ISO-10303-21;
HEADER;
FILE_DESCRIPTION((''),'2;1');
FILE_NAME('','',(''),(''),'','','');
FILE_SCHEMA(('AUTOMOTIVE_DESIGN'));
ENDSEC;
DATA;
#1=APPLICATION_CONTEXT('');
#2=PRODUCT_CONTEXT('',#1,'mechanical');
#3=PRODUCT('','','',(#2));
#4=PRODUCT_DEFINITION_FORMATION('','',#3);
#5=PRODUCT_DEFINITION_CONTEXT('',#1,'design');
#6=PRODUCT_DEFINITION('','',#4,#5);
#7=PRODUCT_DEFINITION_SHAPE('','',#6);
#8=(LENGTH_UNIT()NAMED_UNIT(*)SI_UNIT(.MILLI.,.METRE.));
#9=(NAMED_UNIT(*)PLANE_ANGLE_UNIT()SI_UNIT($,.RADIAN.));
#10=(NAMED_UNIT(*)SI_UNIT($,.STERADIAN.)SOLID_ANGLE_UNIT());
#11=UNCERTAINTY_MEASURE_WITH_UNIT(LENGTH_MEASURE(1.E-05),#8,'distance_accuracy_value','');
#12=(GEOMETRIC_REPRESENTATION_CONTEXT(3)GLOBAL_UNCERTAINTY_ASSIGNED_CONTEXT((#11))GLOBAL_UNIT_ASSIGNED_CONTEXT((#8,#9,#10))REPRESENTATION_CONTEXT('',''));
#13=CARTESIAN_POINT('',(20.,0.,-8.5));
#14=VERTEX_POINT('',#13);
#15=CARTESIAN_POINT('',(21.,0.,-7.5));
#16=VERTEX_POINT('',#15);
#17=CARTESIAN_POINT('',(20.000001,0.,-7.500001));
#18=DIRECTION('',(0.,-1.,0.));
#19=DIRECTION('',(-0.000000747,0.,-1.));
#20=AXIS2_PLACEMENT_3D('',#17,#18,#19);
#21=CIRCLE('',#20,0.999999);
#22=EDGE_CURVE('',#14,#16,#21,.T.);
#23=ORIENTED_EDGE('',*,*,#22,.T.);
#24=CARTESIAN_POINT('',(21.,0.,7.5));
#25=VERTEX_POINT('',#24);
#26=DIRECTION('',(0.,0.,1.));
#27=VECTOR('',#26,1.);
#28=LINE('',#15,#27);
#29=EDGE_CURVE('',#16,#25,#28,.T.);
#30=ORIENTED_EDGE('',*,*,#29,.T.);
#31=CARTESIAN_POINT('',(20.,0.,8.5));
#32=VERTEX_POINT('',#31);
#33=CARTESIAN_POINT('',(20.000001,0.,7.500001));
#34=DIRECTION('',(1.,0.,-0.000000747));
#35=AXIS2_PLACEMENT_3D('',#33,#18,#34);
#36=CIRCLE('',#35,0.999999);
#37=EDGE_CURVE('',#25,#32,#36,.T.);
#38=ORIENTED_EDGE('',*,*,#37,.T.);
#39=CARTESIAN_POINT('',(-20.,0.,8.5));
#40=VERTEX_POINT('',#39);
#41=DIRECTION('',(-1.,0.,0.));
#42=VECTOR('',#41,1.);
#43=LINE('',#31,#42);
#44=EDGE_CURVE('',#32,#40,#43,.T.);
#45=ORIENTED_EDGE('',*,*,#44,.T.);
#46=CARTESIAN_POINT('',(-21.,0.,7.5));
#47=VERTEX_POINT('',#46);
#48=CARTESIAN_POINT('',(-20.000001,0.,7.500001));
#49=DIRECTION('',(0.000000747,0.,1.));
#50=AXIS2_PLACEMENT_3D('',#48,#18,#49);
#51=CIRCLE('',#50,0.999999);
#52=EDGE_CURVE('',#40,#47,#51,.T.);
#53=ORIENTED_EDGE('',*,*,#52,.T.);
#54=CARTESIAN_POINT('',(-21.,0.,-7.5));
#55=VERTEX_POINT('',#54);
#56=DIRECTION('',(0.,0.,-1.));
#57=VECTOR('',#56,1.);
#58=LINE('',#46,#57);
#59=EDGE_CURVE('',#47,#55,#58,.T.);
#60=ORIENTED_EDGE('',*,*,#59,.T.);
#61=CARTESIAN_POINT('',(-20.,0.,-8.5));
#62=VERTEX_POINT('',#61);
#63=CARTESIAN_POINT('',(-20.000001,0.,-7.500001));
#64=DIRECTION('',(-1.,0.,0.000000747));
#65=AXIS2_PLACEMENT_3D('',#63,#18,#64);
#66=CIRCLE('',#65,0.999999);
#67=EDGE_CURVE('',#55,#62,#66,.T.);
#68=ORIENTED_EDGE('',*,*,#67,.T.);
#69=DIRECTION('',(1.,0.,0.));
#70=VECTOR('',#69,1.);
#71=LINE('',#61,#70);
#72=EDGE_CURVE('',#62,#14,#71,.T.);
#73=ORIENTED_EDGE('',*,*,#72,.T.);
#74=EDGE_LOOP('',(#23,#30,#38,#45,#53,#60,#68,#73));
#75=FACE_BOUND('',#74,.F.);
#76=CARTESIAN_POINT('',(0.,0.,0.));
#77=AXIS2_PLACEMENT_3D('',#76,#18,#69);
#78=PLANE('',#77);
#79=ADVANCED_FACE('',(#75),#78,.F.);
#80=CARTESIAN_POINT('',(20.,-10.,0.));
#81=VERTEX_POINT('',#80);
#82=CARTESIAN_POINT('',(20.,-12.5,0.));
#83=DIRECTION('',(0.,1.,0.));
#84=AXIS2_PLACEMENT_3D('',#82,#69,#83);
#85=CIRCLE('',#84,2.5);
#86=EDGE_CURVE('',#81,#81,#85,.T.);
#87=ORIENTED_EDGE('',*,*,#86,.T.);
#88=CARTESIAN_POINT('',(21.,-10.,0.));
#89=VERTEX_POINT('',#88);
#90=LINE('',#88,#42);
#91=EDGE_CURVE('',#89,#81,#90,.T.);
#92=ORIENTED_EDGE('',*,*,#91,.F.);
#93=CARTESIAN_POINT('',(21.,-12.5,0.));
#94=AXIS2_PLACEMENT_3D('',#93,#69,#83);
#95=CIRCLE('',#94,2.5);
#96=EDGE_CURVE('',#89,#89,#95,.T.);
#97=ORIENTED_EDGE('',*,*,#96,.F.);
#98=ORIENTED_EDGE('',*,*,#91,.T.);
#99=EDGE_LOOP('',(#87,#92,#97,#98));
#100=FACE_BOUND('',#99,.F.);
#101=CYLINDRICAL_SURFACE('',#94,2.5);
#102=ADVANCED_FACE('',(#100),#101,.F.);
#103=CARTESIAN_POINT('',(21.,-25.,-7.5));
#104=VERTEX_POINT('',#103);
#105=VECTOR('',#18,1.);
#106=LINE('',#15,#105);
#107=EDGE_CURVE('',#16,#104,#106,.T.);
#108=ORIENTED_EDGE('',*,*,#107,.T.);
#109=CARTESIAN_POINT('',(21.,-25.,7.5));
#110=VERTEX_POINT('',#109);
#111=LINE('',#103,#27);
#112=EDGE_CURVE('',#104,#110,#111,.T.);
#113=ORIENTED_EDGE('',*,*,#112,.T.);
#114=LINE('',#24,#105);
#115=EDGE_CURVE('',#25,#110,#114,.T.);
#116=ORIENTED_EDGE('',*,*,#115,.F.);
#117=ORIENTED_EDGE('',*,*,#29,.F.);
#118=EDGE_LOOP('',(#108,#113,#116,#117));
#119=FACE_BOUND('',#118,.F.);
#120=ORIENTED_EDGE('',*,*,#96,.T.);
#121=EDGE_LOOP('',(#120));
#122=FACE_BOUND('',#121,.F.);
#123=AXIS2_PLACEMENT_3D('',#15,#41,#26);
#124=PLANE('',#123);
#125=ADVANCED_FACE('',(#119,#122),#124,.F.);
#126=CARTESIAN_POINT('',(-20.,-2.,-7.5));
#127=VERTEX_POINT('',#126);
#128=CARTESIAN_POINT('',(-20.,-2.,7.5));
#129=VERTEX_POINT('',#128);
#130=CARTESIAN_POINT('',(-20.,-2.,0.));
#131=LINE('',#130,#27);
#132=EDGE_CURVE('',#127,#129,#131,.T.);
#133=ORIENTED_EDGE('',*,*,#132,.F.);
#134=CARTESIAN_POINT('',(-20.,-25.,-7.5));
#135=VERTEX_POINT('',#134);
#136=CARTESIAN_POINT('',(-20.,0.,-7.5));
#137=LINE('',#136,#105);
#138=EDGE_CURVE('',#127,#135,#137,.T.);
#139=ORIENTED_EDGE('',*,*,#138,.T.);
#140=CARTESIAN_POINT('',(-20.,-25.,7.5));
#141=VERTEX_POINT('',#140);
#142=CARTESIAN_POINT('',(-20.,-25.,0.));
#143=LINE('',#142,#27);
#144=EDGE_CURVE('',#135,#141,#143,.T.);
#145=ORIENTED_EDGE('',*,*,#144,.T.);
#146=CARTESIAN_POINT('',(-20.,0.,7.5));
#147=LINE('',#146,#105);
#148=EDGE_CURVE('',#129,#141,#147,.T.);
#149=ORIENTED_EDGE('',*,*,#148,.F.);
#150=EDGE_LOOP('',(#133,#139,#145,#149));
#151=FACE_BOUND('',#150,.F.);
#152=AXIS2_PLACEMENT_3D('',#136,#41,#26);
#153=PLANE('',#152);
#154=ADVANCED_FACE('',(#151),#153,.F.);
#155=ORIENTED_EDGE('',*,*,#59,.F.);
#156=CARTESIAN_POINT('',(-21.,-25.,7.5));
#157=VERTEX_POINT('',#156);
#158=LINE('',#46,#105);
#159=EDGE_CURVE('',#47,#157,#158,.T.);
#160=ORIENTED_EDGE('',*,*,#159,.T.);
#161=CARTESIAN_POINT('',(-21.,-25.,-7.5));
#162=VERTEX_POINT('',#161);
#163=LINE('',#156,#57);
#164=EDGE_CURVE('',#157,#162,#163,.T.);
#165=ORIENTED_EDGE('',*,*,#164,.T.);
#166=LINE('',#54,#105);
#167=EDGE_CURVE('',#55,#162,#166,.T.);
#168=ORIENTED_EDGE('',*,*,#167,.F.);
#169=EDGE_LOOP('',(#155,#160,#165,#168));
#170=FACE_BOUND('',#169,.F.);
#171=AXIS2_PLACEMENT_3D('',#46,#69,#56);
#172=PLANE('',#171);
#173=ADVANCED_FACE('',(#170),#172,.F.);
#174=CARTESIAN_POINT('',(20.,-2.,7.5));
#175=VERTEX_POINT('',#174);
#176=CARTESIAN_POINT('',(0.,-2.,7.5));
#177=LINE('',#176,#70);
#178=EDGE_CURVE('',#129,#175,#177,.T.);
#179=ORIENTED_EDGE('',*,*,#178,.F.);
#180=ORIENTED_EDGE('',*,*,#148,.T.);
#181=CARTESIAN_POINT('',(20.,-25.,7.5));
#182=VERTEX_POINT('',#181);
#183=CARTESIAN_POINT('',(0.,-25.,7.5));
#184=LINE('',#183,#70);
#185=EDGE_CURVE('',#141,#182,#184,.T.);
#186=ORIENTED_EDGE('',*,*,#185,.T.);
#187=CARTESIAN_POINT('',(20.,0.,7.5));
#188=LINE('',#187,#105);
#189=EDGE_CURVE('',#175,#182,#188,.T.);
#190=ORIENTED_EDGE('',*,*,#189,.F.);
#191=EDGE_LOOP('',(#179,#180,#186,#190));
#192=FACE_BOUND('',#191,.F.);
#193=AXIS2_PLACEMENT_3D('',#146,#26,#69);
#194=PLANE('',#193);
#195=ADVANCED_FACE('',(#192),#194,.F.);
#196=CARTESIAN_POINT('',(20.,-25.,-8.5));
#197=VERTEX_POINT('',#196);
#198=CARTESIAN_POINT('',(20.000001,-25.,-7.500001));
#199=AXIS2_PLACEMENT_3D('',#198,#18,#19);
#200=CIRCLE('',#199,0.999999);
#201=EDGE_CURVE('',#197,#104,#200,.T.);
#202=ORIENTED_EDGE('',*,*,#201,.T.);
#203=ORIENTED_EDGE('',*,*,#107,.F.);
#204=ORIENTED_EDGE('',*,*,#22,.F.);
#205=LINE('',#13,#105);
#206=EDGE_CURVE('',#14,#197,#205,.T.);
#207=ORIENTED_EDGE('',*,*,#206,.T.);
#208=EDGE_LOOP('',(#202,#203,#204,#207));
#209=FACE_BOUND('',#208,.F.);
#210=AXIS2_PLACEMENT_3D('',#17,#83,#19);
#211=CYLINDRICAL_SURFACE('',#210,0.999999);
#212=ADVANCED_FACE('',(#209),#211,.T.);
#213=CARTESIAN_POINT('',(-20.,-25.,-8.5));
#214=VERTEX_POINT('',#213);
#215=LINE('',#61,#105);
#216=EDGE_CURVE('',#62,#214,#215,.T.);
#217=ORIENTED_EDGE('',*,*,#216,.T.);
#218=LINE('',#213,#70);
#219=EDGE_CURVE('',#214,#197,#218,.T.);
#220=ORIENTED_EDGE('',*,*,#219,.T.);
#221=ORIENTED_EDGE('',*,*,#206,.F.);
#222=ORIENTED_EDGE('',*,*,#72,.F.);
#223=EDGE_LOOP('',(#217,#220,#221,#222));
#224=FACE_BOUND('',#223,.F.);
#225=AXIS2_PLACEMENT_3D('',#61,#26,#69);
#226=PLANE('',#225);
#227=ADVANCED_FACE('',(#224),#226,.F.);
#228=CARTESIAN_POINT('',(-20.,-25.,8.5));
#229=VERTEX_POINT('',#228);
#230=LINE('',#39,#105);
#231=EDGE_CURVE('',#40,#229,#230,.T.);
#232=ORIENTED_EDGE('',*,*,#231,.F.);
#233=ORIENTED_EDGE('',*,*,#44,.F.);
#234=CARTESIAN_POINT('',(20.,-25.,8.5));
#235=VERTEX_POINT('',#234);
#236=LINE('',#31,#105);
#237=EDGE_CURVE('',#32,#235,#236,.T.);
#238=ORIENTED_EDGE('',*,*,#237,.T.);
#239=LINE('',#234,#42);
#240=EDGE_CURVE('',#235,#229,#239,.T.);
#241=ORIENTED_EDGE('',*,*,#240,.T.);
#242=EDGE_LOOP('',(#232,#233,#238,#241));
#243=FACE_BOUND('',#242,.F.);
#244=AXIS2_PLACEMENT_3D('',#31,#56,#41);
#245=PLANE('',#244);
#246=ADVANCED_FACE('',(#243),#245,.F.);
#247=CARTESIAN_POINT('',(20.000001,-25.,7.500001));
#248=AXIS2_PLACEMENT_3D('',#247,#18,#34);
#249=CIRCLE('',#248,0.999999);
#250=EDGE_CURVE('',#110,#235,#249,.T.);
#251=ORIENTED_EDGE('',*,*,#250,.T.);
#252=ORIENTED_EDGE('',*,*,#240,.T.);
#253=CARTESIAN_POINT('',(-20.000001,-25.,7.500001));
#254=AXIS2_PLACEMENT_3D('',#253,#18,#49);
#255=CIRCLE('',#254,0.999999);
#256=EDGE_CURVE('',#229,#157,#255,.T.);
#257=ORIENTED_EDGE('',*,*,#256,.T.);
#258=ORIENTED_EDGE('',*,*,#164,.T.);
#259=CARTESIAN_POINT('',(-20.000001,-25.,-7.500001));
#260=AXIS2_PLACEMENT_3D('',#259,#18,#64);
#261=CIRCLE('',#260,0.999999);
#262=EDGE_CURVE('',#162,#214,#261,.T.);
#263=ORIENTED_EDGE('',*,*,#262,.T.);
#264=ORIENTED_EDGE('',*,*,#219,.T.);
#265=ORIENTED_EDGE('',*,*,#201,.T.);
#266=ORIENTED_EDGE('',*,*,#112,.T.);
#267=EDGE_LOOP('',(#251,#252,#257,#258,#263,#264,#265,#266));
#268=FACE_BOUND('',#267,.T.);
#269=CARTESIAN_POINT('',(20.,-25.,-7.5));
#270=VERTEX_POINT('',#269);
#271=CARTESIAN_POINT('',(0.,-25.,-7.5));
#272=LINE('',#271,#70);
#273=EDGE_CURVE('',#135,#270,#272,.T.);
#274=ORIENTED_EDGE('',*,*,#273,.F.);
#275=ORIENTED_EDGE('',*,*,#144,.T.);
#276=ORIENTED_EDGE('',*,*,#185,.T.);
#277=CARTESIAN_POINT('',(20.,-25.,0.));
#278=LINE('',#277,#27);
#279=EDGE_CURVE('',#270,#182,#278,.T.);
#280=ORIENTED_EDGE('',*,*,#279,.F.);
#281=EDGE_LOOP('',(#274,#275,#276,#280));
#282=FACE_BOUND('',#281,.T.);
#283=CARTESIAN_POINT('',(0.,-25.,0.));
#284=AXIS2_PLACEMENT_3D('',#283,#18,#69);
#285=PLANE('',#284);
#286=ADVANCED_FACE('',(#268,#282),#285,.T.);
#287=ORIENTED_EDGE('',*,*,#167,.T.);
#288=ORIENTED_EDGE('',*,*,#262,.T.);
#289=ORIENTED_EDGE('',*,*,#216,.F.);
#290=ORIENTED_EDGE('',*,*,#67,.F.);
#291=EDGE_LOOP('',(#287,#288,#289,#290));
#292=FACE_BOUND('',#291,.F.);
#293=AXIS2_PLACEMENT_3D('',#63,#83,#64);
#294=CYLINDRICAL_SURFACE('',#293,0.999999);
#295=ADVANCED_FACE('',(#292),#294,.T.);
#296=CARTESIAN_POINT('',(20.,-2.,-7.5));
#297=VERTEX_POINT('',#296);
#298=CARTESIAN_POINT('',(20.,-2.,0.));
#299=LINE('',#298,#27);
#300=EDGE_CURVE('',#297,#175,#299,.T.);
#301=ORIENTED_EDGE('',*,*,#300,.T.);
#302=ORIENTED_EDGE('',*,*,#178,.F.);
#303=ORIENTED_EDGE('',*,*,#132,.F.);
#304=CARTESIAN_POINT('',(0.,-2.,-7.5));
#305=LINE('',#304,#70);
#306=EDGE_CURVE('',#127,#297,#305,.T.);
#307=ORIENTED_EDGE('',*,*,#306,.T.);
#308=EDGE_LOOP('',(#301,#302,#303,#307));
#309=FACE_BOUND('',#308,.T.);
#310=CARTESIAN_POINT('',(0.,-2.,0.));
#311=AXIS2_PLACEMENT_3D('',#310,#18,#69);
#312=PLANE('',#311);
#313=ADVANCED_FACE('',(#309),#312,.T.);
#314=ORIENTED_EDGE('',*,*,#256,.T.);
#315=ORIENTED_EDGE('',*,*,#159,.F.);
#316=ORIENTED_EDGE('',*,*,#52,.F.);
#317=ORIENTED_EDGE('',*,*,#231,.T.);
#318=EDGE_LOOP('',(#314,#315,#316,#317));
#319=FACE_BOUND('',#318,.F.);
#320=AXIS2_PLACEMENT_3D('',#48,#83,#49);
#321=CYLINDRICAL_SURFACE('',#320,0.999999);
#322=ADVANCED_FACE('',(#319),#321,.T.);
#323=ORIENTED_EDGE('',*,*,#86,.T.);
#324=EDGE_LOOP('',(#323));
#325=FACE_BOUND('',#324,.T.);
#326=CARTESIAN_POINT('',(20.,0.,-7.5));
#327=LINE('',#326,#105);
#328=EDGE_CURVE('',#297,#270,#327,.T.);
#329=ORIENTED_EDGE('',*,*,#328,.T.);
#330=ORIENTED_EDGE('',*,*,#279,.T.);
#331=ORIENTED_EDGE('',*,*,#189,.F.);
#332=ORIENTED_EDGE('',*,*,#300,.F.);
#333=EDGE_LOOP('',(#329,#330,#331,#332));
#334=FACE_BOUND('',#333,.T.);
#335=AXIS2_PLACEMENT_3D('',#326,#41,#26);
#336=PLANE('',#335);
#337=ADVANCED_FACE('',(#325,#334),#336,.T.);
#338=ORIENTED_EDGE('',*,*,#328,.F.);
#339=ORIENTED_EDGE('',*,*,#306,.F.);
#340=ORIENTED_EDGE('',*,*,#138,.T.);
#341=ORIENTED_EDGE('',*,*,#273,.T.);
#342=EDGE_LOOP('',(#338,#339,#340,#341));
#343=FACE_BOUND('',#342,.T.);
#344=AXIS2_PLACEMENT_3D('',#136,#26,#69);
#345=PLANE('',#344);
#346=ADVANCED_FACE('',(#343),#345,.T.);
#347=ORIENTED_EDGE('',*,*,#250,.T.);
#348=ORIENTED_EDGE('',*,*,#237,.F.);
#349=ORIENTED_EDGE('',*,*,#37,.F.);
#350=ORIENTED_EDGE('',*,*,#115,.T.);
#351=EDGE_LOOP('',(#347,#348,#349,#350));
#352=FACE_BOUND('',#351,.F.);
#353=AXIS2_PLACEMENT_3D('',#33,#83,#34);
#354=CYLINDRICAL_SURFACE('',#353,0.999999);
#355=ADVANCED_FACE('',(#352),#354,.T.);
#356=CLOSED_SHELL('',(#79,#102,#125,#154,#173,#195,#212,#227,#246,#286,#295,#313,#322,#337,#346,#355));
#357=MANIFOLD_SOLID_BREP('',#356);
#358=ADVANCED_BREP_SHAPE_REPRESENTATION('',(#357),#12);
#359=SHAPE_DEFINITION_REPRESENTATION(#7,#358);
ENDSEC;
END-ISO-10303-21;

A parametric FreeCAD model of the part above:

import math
import FreeCAD as App
import Part
import Sketcher
from FreeCAD import Vector
Q = App.Units.Quantity

doc = App.newDocument("Part")
body = doc.addObject("PartDesign::Body", "Body")

sketch1 = doc.addObject("Sketcher::SketchObject", "Sketch")
body.addObject(sketch1)
sketch1.AttachmentSupport = (doc.XZ_Plane, [""])
sketch1.MapMode = "FlatFace"
sketch1.addGeometry([
    Part.LineSegment(Vector(-20, -8.5, 0), Vector(20, -8.5, 0)),
    Part.ArcOfCircle(Part.Circle(Vector(20.000001, -7.500001, 0), Vector(0, 0, 1), 0.999999), math.radians(-90.000043), math.radians(0.000043)),
    Part.LineSegment(Vector(21, -7.5, 0), Vector(21, 7.5, 0)),
    Part.ArcOfCircle(Part.Circle(Vector(20.000001, 7.500001, 0), Vector(0, 0, 1), 0.999999), math.radians(-0.000043), math.radians(90.000043)),
    Part.LineSegment(Vector(20, 8.5, 0), Vector(-20, 8.5, 0)),
    Part.ArcOfCircle(Part.Circle(Vector(-20.000001, 7.500001, 0), Vector(0, 0, 1), 0.999999), math.radians(89.999957), math.radians(180.000043)),
    Part.LineSegment(Vector(-21, 7.5, 0), Vector(-21, -7.5, 0)),
    Part.ArcOfCircle(Part.Circle(Vector(-20.000001, -7.500001, 0), Vector(0, 0, 1), 0.999999), math.radians(179.999957), math.radians(270.000043)),
    Part.LineSegment(Vector(20, -7.5, 0), Vector(-20, -7.5, 0)),
    Part.LineSegment(Vector(-20, -7.5, 0), Vector(-20, 7.5, 0)),
    Part.LineSegment(Vector(-20, 7.5, 0), Vector(20, 7.5, 0)),
    Part.LineSegment(Vector(20, 7.5, 0), Vector(20, -7.5, 0)),
], False)
sketch1.addConstraint([
    Sketcher.Constraint("Tangent", 0, 2, 1, 1),
    Sketcher.Constraint("Tangent", 1, 2, 2, 1),
    Sketcher.Constraint("Tangent", 2, 2, 3, 1),
    Sketcher.Constraint("Tangent", 3, 2, 4, 1),
    Sketcher.Constraint("Tangent", 4, 2, 5, 1),
    Sketcher.Constraint("Tangent", 5, 2, 6, 1),
    Sketcher.Constraint("Tangent", 6, 2, 7, 1),
    Sketcher.Constraint("Tangent", 7, 2, 0, 1),
    Sketcher.Constraint("Coincident", 8, 2, 9, 1),
    Sketcher.Constraint("Coincident", 9, 2, 10, 1),
    Sketcher.Constraint("Coincident", 10, 2, 11, 1),
    Sketcher.Constraint("Coincident", 11, 2, 8, 1),
    Sketcher.Constraint("Horizontal", 0),
    Sketcher.Constraint("Vertical", 2),
    Sketcher.Constraint("Horizontal", 4),
    Sketcher.Constraint("Vertical", 6),
    Sketcher.Constraint("Horizontal", 8),
    Sketcher.Constraint("Vertical", 9),
    Sketcher.Constraint("Horizontal", 10),
    Sketcher.Constraint("Vertical", 11),
    Sketcher.Constraint("Coincident", 8, 2, 7, 3),
    Sketcher.Constraint("Coincident", 9, 2, 5, 3),
    Sketcher.Constraint("Coincident", 10, 2, 3, 3),
    Sketcher.Constraint("Equal", 1, 3),
    Sketcher.Constraint("Symmetric", 1, 3, 5, 3, -1, 1),
    Sketcher.Constraint("Radius", 1, Q("0.999999 mm")),
    Sketcher.Constraint("DistanceX", 0, 1, 0, 2, Q("40 mm")),
    Sketcher.Constraint("DistanceY", 2, 1, 2, 2, Q("15 mm")),
])
pad1 = doc.addObject("PartDesign::Pad", "Pad")
body.addObject(pad1)
pad1.Profile = sketch1
pad1.Length = 25

sketch2 = doc.addObject("Sketcher::SketchObject", "Sketch001")
body.addObject(sketch2)
sketch2.AttachmentSupport = (doc.XZ_Plane, [""])
sketch2.MapMode = "FlatFace"
sketch2.addGeometry([
    Part.LineSegment(Vector(-20, 7.5, 0), Vector(-20, -7.5, 0)),
    Part.LineSegment(Vector(-20, -7.5, 0), Vector(20, -7.5, 0)),
    Part.LineSegment(Vector(20, -7.5, 0), Vector(20, 7.5, 0)),
    Part.LineSegment(Vector(20, 7.5, 0), Vector(-20, 7.5, 0)),
], False)
sketch2.addConstraint([
    Sketcher.Constraint("Coincident", 0, 2, 1, 1),
    Sketcher.Constraint("Coincident", 1, 2, 2, 1),
    Sketcher.Constraint("Coincident", 2, 2, 3, 1),
    Sketcher.Constraint("Coincident", 3, 2, 0, 1),
    Sketcher.Constraint("Vertical", 0),
    Sketcher.Constraint("Horizontal", 1),
    Sketcher.Constraint("Vertical", 2),
    Sketcher.Constraint("Horizontal", 3),
    Sketcher.Constraint("Symmetric", 0, 2, 2, 2, -1, 1),
    Sketcher.Constraint("DistanceX", 1, 1, 1, 2, Q("40 mm")),
    Sketcher.Constraint("DistanceY", 0, 2, 0, 1, Q("15 mm")),
])
pad2 = doc.addObject("PartDesign::Pad", "Pad001")
body.addObject(pad2)
pad2.Profile = sketch2
pad2.Length = 2

sketch3 = doc.addObject("Sketcher::SketchObject", "Sketch002")
body.addObject(sketch3)
sketch3.AttachmentSupport = (doc.YZ_Plane, [""])
sketch3.MapMode = "FlatFace"
sketch3.AttachmentOffset = App.Placement(Vector(0, 0, 21), App.Rotation())
sketch3.addGeometry(Part.Circle(Vector(-12.5, 0, 0), Vector(0, 0, 1), 2.5), False)
sketch3.addConstraint([
    Sketcher.Constraint("PointOnObject", 0, 3, -1),
    Sketcher.Constraint("Diameter", 0, Q("5 mm")),
    Sketcher.Constraint("DistanceX", 0, 3, -1, 1, Q("12.5 mm")),
])
pocket1 = doc.addObject("PartDesign::Pocket", "Pocket")
body.addObject(pocket1)
pocket1.Profile = sketch3
pocket1.Length = 5

doc.recompute()
